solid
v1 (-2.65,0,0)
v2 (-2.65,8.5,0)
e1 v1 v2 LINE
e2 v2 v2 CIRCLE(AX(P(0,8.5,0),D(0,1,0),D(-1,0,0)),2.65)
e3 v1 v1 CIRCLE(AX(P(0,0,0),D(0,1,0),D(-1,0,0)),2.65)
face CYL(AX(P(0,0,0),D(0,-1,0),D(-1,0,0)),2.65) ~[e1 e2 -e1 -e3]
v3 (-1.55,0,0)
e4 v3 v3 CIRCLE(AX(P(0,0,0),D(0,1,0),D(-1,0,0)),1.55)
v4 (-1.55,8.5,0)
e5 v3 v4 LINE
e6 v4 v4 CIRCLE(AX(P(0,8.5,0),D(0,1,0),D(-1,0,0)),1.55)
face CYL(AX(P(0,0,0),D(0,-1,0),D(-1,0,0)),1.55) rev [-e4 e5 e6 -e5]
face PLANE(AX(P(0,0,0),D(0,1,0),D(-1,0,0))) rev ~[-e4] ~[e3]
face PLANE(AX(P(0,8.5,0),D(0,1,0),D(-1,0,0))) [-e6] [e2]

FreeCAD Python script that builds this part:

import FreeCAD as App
import Part
import Sketcher
from FreeCAD import Vector

doc = App.newDocument("Part")
body = doc.addObject("PartDesign::Body", "Body")

# Sketch on XZ plane
sketch1 = doc.addObject("Sketcher::SketchObject", "Sketch")
body.addObject(sketch1)
sketch1.AttachmentSupport = (doc.XZ_Plane, [""])
sketch1.MapMode = "FlatFace"
sketch1.addGeometry(Part.Circle(Vector(0, 0, 0), Vector(0, 0, 1), 2.6), False)
sketch1.addGeometry(Part.Circle(Vector(0, 0, 0), Vector(0, 0, 1), 1.6), False)
sketch1.addConstraint(Sketcher.Constraint("Coincident", 0, 3, -1, 1))
sketch1.addConstraint(Sketcher.Constraint("Coincident", 1, 3, -1, 1))
sketch1.addConstraint(Sketcher.Constraint("Diameter", 1, 3.1))
sketch1.addConstraint(Sketcher.Constraint("Diameter", 0, 5.3))
pad1 = doc.addObject("PartDesign::Pad", "Pad")
body.addObject(pad1)
pad1.Profile = sketch1
pad1.Length = 8.5
pad1.Reversed = True

doc.recompute()
